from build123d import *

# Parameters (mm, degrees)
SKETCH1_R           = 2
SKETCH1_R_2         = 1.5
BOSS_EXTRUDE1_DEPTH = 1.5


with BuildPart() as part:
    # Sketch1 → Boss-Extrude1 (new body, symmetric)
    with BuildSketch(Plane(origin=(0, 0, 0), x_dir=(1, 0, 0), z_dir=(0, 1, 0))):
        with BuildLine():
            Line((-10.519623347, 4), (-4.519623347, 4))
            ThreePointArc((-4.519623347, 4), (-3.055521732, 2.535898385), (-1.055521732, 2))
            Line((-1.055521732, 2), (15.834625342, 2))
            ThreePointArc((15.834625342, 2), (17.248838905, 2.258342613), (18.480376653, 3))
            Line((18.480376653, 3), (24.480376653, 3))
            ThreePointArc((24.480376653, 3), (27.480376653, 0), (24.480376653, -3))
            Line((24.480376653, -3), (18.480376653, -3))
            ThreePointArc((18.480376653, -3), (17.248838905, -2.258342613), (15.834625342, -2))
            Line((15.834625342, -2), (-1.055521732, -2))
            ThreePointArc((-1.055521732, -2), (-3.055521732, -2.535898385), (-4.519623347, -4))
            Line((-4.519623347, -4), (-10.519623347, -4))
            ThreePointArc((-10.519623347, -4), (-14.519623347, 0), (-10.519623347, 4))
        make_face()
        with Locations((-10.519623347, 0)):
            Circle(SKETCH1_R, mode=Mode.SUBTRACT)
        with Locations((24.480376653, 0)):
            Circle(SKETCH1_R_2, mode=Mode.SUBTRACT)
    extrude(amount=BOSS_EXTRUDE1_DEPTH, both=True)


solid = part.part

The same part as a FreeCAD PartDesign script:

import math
import FreeCAD as App
import Part
import Sketcher

V = App.Vector
Q = App.Units.Quantity

doc = App.newDocument("Part")
body = doc.addObject("PartDesign::Body", "Body")

# Sketch on XZ plane
sketch1 = body.newObject("Sketcher::SketchObject", "Sketch")
sketch1.AttachmentSupport = (doc.getObject("XZ_Plane"), [""])
sketch1.MapMode = "FlatFace"
sketch1.addGeometry(Part.LineSegment(V(-4.519623, -4, 0), V(-10.519623, -4, 0)), False)
sketch1.addGeometry(Part.ArcOfCircle(Part.Circle(V(-10.519623, 0, 0), V(0, 0, 1), 4), math.radians(90), math.radians(270)), False)
sketch1.addGeometry(Part.LineSegment(V(-10.519623, 4, 0), V(-4.519623, 4, 0)), False)
sketch1.addGeometry(Part.ArcOfCircle(Part.Circle(V(-1.055522, 6, 0), V(0, 0, 1), 4), math.radians(-150), math.radians(-90)), False)
sketch1.addGeometry(Part.LineSegment(V(-1.055522, 2, 0), V(15.834625, 2, 0)), False)
sketch1.addGeometry(Part.ArcOfCircle(Part.Circle(V(15.834625, 6, 0), V(0, 0, 1), 4), math.radians(-90), math.radians(-48.590378)), False)
sketch1.addGeometry(Part.LineSegment(V(18.480377, 3, 0), V(24.480377, 3, 0)), False)
sketch1.addGeometry(Part.ArcOfCircle(Part.Circle(V(24.480377, 0, 0), V(0, 0, 1), 3), math.radians(-90), math.radians(90)), False)
sketch1.addGeometry(Part.LineSegment(V(24.480377, -3, 0), V(18.480377, -3, 0)), False)
sketch1.addGeometry(Part.ArcOfCircle(Part.Circle(V(15.834625, -6, 0), V(0, 0, 1), 4), math.radians(48.590378), math.radians(90)), False)
sketch1.addGeometry(Part.LineSegment(V(15.834625, -2, 0), V(-1.055522, -2, 0)), False)
sketch1.addGeometry(Part.ArcOfCircle(Part.Circle(V(-1.055522, -6, 0), V(0, 0, 1), 4), math.radians(90), math.radians(150)), False)
sketch1.addGeometry(Part.Circle(V(24.480377, 0, 0), V(0, 0, 1), 1.5), False)
sketch1.addGeometry(Part.Circle(V(-10.519623, 0, 0), V(0, 0, 1), 2), False)
sketch1.addConstraint(Sketcher.Constraint("Tangent", 0, 2, 1, 2))
sketch1.addConstraint(Sketcher.Constraint("Tangent", 1, 1, 2, 1))
sketch1.addConstraint(Sketcher.Constraint("Coincident", 2, 2, 3, 1))
sketch1.addConstraint(Sketcher.Constraint("Tangent", 3, 2, 4, 1))
sketch1.addConstraint(Sketcher.Constraint("Tangent", 4, 2, 5, 1))
sketch1.addConstraint(Sketcher.Constraint("Coincident", 5, 2, 6, 1))
sketch1.addConstraint(Sketcher.Constraint("Tangent", 6, 2, 7, 2))
sketch1.addConstraint(Sketcher.Constraint("Tangent", 7, 1, 8, 1))
sketch1.addConstraint(Sketcher.Constraint("Coincident", 8, 2, 9, 1))
sketch1.addConstraint(Sketcher.Constraint("Tangent", 9, 2, 10, 1))
sketch1.addConstraint(Sketcher.Constraint("Tangent", 10, 2, 11, 1))
sketch1.addConstraint(Sketcher.Constraint("Coincident", 11, 2, 0, 1))
sketch1.addConstraint(Sketcher.Constraint("Horizontal", 0))
sketch1.addConstraint(Sketcher.Constraint("Horizontal", 2))
sketch1.addConstraint(Sketcher.Constraint("Horizontal", 4))
sketch1.addConstraint(Sketcher.Constraint("Horizontal", 6))
sketch1.addConstraint(Sketcher.Constraint("Horizontal", 8))
sketch1.addConstraint(Sketcher.Constraint("Horizontal", 10))
sketch1.addConstraint(Sketcher.Constraint("Coincident", 12, 3, 7, 3))
sketch1.addConstraint(Sketcher.Constraint("Coincident", 13, 3, 1, 3))
sketch1.addConstraint(Sketcher.Constraint("Equal", 1, 3))
sketch1.addConstraint(Sketcher.Constraint("Equal", 3, 5))
sketch1.addConstraint(Sketcher.Constraint("Equal", 5, 9))
sketch1.addConstraint(Sketcher.Constraint("Equal", 9, 11))
sketch1.addConstraint(Sketcher.Constraint("Symmetric", 5, 3, 9, 3, -1))
sketch1.addConstraint(Sketcher.Constraint("Symmetric", 2, 2, 11, 2, -1))
sketch1.addConstraint(Sketcher.Constraint("PointOnObject", 7, 3, -1))
sketch1.addConstraint(Sketcher.Constraint("Equal", 2, 6))
sketch1.addConstraint(Sketcher.Constraint("Diameter", 12, Q("3 mm")))
sketch1.addConstraint(Sketcher.Constraint("Diameter", 13, Q("4 mm")))
sketch1.addConstraint(Sketcher.Constraint("Radius", 1, Q("4 mm")))
sketch1.addConstraint(Sketcher.Constraint("Radius", 7, Q("3 mm")))
sketch1.addConstraint(Sketcher.Constraint("DistanceX", 0, 2, 0, 1, Q("6 mm")))
sketch1.addConstraint(Sketcher.Constraint("DistanceY", -1, 1, 3, 3, Q("6 mm")))
sketch1.addConstraint(Sketcher.Constraint("DistanceX", 1, 3, 7, 3, Q("35 mm")))
sketch1.addConstraint(Sketcher.Constraint("DistanceX", 3, 3, -1, 1, Q("1.055522 mm")))
pad1 = body.newObject("PartDesign::Pad", "Pad")
pad1.Profile = sketch1
pad1.Length = 3
pad1.Midplane = True

doc.recompute()
